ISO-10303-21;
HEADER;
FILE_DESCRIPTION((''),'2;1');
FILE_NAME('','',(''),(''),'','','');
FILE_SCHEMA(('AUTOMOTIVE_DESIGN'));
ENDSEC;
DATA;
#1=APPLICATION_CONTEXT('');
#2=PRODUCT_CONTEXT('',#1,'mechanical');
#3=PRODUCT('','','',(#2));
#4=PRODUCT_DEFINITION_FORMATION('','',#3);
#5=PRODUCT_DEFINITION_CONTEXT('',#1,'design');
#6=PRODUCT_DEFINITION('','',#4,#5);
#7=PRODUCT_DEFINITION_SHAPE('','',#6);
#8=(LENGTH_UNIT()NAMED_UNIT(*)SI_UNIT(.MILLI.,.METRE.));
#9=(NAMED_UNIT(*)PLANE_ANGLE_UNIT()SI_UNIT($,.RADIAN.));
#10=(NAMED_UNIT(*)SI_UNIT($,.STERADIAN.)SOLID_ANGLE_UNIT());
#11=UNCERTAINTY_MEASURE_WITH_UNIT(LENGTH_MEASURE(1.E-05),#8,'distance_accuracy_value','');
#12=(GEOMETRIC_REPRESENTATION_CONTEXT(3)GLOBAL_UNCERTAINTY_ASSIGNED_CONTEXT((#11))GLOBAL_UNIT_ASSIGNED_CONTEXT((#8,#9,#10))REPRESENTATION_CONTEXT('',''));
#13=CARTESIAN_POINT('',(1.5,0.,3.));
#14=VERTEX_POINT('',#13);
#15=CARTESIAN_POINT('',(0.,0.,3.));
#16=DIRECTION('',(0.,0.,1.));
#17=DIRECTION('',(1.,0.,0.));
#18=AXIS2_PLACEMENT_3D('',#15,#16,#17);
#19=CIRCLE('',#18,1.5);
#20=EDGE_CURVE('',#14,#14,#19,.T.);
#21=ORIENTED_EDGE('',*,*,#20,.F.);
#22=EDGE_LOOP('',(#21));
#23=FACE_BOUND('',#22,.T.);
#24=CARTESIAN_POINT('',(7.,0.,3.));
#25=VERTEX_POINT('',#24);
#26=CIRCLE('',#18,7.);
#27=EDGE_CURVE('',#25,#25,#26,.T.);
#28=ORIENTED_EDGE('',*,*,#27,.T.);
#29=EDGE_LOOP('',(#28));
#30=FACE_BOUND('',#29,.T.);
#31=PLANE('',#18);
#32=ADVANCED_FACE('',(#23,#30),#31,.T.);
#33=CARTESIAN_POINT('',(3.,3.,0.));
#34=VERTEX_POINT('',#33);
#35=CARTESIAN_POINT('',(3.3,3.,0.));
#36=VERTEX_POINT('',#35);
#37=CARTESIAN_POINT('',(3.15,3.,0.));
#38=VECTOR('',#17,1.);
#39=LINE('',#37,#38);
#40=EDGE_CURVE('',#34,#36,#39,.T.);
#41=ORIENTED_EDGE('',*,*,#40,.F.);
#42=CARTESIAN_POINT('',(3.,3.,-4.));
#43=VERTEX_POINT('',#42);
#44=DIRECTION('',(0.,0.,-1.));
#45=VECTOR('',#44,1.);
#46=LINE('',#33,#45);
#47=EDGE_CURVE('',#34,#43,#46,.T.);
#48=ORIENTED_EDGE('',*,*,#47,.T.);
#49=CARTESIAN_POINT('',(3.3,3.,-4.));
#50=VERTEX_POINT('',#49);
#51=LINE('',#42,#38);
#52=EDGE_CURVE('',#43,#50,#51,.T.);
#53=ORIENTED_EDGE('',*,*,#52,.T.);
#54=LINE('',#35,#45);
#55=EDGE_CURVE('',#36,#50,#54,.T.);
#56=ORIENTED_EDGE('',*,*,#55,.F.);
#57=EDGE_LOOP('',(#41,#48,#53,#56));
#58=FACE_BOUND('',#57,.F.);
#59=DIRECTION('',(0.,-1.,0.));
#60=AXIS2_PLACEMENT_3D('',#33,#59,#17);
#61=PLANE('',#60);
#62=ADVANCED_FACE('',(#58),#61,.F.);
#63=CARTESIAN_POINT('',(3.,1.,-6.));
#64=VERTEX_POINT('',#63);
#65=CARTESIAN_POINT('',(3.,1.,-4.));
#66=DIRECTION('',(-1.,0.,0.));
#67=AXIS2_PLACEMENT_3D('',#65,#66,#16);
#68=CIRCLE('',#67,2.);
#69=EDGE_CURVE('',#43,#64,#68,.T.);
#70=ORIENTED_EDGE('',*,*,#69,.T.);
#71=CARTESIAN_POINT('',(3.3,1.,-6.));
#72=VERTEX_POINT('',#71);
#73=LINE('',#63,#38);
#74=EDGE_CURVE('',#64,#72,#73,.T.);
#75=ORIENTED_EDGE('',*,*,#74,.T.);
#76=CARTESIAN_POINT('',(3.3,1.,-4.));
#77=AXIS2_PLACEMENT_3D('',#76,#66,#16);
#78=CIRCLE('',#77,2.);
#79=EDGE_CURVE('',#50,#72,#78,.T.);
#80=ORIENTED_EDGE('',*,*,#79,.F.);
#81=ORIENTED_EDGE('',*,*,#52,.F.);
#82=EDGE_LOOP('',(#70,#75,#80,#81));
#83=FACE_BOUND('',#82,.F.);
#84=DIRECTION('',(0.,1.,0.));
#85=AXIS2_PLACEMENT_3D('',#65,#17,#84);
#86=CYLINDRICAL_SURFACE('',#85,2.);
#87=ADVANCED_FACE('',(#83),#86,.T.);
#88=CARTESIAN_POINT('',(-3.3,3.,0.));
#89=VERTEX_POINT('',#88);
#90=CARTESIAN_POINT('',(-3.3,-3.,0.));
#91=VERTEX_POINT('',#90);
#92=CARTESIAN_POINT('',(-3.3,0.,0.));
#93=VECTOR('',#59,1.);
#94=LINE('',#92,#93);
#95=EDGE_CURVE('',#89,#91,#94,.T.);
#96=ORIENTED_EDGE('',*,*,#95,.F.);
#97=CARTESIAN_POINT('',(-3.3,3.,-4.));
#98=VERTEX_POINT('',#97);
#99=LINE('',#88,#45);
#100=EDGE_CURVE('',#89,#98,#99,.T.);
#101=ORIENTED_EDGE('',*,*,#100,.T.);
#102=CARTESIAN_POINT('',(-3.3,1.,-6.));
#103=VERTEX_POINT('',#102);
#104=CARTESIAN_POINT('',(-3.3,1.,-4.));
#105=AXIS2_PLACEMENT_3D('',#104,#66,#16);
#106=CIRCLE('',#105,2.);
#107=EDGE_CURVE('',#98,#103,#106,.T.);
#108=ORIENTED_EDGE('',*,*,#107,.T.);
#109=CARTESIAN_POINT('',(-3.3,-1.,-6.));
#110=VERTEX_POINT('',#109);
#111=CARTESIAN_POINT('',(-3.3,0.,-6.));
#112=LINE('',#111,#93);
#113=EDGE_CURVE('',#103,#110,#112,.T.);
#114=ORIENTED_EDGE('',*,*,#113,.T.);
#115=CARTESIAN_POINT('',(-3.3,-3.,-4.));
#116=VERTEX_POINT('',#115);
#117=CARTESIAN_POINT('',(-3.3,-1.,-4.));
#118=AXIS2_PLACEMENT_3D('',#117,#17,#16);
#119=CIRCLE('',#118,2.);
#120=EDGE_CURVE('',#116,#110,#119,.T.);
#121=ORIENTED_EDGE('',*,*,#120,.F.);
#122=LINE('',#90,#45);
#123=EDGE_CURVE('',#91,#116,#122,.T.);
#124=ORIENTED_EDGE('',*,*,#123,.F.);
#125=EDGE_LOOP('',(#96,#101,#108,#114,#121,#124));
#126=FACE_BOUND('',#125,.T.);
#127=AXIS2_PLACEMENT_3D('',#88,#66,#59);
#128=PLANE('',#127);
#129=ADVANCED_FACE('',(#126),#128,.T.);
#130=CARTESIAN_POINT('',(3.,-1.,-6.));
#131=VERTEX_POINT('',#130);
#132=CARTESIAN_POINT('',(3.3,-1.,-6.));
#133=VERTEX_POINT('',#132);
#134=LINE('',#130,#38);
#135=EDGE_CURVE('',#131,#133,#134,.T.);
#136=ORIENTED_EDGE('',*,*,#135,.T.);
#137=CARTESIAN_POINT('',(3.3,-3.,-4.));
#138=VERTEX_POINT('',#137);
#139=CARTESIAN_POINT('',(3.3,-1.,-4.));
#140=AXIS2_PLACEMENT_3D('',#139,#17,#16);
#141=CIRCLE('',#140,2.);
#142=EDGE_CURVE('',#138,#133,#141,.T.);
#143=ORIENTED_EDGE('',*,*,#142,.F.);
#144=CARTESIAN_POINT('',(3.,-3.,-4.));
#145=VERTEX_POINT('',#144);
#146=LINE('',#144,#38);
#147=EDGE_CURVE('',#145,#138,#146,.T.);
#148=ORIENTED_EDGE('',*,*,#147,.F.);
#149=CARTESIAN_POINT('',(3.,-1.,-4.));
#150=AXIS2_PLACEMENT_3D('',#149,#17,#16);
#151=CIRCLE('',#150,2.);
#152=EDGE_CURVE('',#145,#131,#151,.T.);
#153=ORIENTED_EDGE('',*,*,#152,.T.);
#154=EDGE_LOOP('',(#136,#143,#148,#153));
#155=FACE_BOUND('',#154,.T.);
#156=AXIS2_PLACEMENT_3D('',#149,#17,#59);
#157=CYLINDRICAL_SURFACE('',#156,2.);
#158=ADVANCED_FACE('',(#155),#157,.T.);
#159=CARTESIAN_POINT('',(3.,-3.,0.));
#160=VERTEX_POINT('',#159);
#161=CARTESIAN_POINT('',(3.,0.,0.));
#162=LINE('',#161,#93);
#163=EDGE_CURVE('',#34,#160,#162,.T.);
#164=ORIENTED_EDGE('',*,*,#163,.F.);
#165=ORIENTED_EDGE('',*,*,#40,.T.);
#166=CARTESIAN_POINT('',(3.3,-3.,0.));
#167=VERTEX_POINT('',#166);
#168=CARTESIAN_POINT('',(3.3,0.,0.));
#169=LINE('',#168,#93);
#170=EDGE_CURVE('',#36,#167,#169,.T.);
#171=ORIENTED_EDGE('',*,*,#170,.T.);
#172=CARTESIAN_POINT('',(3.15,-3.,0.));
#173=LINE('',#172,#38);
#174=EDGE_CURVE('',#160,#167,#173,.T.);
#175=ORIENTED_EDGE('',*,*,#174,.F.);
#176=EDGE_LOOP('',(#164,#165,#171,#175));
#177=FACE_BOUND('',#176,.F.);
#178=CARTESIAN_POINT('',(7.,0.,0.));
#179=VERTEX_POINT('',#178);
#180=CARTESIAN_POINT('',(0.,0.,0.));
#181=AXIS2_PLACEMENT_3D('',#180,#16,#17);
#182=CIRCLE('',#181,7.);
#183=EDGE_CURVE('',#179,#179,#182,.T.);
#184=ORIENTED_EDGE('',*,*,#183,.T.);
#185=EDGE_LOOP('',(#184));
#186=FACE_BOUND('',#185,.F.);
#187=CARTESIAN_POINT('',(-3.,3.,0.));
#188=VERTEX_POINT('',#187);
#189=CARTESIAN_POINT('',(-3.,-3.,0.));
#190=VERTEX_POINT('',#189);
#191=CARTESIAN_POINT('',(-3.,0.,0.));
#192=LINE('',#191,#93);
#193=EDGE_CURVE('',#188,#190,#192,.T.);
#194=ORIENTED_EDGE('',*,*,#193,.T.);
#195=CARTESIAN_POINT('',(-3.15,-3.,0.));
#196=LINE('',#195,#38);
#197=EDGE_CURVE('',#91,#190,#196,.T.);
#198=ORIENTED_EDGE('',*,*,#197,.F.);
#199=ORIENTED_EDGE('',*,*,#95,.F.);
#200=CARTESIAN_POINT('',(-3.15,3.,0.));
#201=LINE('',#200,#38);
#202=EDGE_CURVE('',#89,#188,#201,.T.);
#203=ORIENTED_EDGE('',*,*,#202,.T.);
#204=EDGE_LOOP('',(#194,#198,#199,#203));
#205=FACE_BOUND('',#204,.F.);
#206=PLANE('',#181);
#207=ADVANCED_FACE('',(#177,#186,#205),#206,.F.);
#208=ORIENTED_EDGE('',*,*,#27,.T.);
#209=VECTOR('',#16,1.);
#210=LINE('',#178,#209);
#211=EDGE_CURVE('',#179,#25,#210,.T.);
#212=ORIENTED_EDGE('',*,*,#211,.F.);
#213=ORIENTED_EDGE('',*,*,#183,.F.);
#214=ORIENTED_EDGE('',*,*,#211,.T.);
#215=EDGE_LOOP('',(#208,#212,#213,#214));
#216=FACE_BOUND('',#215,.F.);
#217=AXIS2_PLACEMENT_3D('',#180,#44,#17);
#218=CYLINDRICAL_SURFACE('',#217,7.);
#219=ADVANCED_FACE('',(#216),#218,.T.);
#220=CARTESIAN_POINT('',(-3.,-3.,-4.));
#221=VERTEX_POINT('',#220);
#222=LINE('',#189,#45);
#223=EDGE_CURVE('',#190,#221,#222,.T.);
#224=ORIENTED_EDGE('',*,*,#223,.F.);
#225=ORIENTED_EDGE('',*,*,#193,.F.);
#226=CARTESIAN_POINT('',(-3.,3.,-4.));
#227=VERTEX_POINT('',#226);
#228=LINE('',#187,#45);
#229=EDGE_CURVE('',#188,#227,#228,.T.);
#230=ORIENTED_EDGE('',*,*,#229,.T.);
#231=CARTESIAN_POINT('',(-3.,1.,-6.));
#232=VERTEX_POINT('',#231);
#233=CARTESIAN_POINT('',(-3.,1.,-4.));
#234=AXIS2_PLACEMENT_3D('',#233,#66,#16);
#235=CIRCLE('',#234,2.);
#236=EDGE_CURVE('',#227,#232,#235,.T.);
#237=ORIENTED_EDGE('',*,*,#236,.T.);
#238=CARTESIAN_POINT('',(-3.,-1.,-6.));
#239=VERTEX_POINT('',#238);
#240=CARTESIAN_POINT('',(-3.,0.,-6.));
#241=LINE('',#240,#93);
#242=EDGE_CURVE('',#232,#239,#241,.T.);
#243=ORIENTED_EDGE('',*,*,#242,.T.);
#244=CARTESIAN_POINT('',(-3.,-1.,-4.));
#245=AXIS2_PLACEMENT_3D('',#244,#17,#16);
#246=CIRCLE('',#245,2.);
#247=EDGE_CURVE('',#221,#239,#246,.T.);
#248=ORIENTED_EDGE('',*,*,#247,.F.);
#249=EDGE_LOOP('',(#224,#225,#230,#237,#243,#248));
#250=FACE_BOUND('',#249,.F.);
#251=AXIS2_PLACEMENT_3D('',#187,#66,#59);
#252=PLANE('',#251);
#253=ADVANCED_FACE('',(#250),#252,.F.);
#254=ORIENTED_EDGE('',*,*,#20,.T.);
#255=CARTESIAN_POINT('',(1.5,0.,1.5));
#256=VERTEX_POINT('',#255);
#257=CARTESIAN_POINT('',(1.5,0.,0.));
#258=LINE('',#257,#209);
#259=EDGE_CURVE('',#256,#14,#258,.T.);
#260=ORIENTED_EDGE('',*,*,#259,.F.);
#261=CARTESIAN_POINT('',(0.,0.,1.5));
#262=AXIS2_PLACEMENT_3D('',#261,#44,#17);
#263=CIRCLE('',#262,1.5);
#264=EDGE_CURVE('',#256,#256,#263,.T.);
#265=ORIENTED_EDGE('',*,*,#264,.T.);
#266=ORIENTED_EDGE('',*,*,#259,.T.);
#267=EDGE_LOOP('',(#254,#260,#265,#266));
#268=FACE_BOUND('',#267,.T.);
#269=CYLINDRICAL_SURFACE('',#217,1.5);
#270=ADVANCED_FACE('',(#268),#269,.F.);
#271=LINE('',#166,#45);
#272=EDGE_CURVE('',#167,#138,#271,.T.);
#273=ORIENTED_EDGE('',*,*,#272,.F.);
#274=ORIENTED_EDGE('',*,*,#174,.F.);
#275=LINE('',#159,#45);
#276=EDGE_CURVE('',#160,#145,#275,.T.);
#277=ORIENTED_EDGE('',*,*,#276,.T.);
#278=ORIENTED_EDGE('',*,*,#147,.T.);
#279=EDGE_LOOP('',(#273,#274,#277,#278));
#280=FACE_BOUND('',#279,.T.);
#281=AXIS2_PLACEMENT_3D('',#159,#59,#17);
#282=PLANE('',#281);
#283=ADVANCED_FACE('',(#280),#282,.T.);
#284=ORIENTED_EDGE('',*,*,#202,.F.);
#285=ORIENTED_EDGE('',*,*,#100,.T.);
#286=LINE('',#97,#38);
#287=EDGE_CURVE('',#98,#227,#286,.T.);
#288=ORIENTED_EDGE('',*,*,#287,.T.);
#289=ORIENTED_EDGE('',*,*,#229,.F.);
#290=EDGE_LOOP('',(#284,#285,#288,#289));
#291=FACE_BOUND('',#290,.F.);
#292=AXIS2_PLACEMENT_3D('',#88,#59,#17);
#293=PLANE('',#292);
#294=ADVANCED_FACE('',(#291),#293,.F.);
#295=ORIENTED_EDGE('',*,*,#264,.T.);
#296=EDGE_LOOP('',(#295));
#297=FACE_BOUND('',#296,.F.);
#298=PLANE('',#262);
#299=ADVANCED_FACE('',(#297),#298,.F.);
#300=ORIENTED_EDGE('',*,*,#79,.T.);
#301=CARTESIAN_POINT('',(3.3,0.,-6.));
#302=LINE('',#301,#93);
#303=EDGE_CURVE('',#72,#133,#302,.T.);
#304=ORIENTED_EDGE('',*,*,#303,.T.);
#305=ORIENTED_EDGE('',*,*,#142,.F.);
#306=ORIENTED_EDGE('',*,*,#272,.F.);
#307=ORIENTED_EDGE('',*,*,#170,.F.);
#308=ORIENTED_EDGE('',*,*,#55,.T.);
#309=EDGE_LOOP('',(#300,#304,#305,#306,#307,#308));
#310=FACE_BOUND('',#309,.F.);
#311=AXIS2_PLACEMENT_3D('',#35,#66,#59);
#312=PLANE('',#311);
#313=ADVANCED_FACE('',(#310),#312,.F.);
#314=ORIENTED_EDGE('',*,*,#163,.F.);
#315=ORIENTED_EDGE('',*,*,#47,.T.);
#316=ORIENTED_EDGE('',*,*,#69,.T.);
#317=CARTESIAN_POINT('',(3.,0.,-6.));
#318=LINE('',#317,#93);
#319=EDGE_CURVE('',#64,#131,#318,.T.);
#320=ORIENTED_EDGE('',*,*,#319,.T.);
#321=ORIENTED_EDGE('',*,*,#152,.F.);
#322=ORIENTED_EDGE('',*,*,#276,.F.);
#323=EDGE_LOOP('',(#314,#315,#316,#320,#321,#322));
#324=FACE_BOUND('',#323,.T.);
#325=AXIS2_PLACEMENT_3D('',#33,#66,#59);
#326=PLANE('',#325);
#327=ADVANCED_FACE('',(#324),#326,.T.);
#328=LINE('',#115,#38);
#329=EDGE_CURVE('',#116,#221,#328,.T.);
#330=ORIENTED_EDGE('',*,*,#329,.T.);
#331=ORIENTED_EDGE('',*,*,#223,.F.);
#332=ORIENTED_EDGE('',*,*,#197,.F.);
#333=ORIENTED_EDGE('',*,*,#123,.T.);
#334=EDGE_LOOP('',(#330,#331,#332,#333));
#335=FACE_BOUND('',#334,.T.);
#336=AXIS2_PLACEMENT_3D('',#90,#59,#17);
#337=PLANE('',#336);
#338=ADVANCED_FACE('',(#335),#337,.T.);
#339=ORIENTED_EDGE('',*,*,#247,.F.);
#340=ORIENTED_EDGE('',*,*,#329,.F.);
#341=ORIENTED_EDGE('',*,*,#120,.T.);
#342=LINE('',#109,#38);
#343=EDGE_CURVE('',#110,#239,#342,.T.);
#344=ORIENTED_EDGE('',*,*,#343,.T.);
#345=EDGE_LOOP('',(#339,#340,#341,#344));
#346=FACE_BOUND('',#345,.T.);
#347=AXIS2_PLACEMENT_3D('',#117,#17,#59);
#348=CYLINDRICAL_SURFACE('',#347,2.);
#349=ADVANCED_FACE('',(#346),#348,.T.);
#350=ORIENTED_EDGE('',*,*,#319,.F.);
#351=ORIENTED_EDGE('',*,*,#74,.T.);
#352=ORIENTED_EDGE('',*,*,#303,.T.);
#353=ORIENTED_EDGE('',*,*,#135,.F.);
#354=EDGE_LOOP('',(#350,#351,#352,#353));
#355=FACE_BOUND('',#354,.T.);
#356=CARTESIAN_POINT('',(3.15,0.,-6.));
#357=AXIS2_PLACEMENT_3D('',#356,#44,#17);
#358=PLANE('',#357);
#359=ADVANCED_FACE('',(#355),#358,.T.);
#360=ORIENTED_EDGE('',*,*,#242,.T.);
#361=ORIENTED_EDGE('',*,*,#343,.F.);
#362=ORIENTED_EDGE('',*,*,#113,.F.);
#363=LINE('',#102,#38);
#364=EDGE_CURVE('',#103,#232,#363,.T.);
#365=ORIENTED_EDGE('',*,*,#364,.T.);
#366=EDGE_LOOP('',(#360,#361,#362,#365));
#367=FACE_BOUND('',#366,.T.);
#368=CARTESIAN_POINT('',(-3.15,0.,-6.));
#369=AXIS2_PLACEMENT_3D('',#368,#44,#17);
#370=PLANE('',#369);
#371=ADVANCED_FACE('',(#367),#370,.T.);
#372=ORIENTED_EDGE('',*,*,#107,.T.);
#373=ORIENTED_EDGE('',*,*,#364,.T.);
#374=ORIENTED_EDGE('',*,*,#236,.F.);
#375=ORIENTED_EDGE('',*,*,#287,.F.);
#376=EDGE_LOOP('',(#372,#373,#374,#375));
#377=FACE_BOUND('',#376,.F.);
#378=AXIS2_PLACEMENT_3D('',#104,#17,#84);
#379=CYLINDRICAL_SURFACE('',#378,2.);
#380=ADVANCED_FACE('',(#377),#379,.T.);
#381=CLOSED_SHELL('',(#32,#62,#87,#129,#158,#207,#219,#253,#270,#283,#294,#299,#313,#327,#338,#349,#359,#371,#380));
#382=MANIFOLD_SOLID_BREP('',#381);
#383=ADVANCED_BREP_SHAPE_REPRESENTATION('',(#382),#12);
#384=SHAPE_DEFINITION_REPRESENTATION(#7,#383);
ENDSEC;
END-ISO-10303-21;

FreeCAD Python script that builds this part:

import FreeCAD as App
import Part
import Sketcher
from FreeCAD import Vector
Q = App.Units.Quantity


def edges_at(feature, points):
    """Names of the edges that pass closest to the given points."""
    edges = feature.Shape.Edges
    near = lambda p: min(range(len(edges)), key=lambda i: edges[i].distToShape(Part.Vertex(*p))[0])
    return sorted({f"Edge{near(p) + 1}" for p in points})


def add_polygon(sketch, points):
    """Adds a closed chain of lines whose ends are joined by coincident constraints."""
    first, n = sketch.GeometryCount, len(points)
    for a, b in zip(points, points[1:] + points[:1]):
        sketch.addGeometry(Part.LineSegment(App.Vector(*a, 0), App.Vector(*b, 0)), False)
    for i in range(n):
        sketch.addConstraint(Sketcher.Constraint("Coincident", first + i, 2, first + (i + 1) % n, 1))

doc = App.newDocument("Part")
params = doc.addObject("Spreadsheet::Sheet", "Params")
for row, (alias, value) in enumerate([
    ("sketch1_diameter", "14 mm"),
    ("sketch1_diameter2", "3 mm"),
    ("pad1_length", "3 mm"),
    ("pad2_length", "1.5 mm"),
    ("sketch3_height", "6 mm"),
    ("sketch3_width", "0.3 mm"),
    ("pad3_length", "6 mm"),
    ("fillet_radius", "2 mm"),
], start=1):
    params.set(f"A{row}", alias)
    params.set(f"B{row}", "=" + value)
    params.setAlias(f"B{row}", alias)

body = doc.addObject("PartDesign::Body", "Body")

# Sketch on XY plane
sketch1 = body.newObject("Sketcher::SketchObject", "Sketch")
sketch1.AttachmentSupport = (doc.getObject("XY_Plane"), [""])
sketch1.MapMode = "FlatFace"
sketch1.addGeometry([
    Part.Circle(Vector(0, 0, 0), Vector(0, 0, 1), 7),
    Part.Circle(Vector(0, 0, 0), Vector(0, 0, 1), 1.5),
], False)
sketch1.addConstraint([
    Sketcher.Constraint("Coincident", 0, 3, -1, 1),
    Sketcher.Constraint("Coincident", 1, 3, -1, 1),
    Sketcher.Constraint("Diameter", 0, Q("14 mm")),
    Sketcher.Constraint("Diameter", 1, Q("3 mm")),
])
sketch1.setExpression("Constraints[2]", "Params.sketch1_diameter")
sketch1.setExpression("Constraints[3]", "Params.sketch1_diameter2")
pad1 = body.newObject("PartDesign::Pad", "Pad")
pad1.Profile = sketch1
pad1.setExpression("Length", "Params.pad1_length")

# Sketch on XY plane
sketch2 = body.newObject("Sketcher::SketchObject", "Sketch001")
sketch2.AttachmentSupport = (doc.getObject("XY_Plane"), [""])
sketch2.MapMode = "FlatFace"
sketch2.addGeometry(Part.Circle(Vector(0, 0, 0), Vector(0, 0, 1), 1.6), False)
sketch2.addConstraint([
    Sketcher.Constraint("Coincident", 0, 3, -1, 1),
    Sketcher.Constraint("Diameter", 0, Q("3.103804 mm")),
])
pad2 = body.newObject("PartDesign::Pad", "Pad001")
pad2.Profile = sketch2
pad2.setExpression("Length", "Params.pad2_length")

# Sketch on XY plane
sketch3 = body.newObject("Sketcher::SketchObject", "Sketch002")
sketch3.AttachmentSupport = (doc.getObject("XY_Plane"), [""])
sketch3.MapMode = "FlatFace"
add_polygon(sketch3, [(-3.3, -3), (-3.3, 3), (-3, 3), (-3, -3)])  # lines 0-3
add_polygon(sketch3, [(3, -3), (3, 3), (3.3, 3), (3.3, -3)])  # lines 4-7
sketch3.addConstraint([
    Sketcher.Constraint("Vertical", 0),
    Sketcher.Constraint("Horizontal", 1),
    Sketcher.Constraint("Vertical", 2),
    Sketcher.Constraint("Horizontal", 3),
    Sketcher.Constraint("Vertical", 4),
    Sketcher.Constraint("Horizontal", 5),
    Sketcher.Constraint("Vertical", 6),
    Sketcher.Constraint("Horizontal", 7),
    Sketcher.Constraint("Symmetric", 2, 2, 4, 2, -1, 1),
    Sketcher.Constraint("Symmetric", 0, 2, 6, 2, -1, 1),
    Sketcher.Constraint("Horizontal", 1, 2, 4, 2),
    Sketcher.Constraint("DistanceY", 0, 1, 0, 2, Q("6 mm")),
    Sketcher.Constraint("DistanceX", 1, 1, 1, 2, Q("0.3 mm")),
    Sketcher.Constraint("DistanceX", 1, 2, -1, 1, Q("3 mm")),
])
sketch3.setExpression("Constraints[19]", "Params.sketch3_height")
sketch3.setExpression("Constraints[20]", "Params.sketch3_width")
pad3 = body.newObject("PartDesign::Pad", "Pad002")
pad3.Profile = sketch3
pad3.setExpression("Length", "Params.pad3_length")
pad3.Reversed = True
doc.recompute()

fillet = body.newObject("PartDesign::Fillet", "Fillet")
fillet.Base = (pad3, edges_at(pad3, [
    (-3.15, -3, -6),
    (-3.15, 3, -6),
    (3.15, 3, -6),
    (3.15, -3, -6),
]))
fillet.setExpression("Radius", "Params.fillet_radius")

doc.recompute()
